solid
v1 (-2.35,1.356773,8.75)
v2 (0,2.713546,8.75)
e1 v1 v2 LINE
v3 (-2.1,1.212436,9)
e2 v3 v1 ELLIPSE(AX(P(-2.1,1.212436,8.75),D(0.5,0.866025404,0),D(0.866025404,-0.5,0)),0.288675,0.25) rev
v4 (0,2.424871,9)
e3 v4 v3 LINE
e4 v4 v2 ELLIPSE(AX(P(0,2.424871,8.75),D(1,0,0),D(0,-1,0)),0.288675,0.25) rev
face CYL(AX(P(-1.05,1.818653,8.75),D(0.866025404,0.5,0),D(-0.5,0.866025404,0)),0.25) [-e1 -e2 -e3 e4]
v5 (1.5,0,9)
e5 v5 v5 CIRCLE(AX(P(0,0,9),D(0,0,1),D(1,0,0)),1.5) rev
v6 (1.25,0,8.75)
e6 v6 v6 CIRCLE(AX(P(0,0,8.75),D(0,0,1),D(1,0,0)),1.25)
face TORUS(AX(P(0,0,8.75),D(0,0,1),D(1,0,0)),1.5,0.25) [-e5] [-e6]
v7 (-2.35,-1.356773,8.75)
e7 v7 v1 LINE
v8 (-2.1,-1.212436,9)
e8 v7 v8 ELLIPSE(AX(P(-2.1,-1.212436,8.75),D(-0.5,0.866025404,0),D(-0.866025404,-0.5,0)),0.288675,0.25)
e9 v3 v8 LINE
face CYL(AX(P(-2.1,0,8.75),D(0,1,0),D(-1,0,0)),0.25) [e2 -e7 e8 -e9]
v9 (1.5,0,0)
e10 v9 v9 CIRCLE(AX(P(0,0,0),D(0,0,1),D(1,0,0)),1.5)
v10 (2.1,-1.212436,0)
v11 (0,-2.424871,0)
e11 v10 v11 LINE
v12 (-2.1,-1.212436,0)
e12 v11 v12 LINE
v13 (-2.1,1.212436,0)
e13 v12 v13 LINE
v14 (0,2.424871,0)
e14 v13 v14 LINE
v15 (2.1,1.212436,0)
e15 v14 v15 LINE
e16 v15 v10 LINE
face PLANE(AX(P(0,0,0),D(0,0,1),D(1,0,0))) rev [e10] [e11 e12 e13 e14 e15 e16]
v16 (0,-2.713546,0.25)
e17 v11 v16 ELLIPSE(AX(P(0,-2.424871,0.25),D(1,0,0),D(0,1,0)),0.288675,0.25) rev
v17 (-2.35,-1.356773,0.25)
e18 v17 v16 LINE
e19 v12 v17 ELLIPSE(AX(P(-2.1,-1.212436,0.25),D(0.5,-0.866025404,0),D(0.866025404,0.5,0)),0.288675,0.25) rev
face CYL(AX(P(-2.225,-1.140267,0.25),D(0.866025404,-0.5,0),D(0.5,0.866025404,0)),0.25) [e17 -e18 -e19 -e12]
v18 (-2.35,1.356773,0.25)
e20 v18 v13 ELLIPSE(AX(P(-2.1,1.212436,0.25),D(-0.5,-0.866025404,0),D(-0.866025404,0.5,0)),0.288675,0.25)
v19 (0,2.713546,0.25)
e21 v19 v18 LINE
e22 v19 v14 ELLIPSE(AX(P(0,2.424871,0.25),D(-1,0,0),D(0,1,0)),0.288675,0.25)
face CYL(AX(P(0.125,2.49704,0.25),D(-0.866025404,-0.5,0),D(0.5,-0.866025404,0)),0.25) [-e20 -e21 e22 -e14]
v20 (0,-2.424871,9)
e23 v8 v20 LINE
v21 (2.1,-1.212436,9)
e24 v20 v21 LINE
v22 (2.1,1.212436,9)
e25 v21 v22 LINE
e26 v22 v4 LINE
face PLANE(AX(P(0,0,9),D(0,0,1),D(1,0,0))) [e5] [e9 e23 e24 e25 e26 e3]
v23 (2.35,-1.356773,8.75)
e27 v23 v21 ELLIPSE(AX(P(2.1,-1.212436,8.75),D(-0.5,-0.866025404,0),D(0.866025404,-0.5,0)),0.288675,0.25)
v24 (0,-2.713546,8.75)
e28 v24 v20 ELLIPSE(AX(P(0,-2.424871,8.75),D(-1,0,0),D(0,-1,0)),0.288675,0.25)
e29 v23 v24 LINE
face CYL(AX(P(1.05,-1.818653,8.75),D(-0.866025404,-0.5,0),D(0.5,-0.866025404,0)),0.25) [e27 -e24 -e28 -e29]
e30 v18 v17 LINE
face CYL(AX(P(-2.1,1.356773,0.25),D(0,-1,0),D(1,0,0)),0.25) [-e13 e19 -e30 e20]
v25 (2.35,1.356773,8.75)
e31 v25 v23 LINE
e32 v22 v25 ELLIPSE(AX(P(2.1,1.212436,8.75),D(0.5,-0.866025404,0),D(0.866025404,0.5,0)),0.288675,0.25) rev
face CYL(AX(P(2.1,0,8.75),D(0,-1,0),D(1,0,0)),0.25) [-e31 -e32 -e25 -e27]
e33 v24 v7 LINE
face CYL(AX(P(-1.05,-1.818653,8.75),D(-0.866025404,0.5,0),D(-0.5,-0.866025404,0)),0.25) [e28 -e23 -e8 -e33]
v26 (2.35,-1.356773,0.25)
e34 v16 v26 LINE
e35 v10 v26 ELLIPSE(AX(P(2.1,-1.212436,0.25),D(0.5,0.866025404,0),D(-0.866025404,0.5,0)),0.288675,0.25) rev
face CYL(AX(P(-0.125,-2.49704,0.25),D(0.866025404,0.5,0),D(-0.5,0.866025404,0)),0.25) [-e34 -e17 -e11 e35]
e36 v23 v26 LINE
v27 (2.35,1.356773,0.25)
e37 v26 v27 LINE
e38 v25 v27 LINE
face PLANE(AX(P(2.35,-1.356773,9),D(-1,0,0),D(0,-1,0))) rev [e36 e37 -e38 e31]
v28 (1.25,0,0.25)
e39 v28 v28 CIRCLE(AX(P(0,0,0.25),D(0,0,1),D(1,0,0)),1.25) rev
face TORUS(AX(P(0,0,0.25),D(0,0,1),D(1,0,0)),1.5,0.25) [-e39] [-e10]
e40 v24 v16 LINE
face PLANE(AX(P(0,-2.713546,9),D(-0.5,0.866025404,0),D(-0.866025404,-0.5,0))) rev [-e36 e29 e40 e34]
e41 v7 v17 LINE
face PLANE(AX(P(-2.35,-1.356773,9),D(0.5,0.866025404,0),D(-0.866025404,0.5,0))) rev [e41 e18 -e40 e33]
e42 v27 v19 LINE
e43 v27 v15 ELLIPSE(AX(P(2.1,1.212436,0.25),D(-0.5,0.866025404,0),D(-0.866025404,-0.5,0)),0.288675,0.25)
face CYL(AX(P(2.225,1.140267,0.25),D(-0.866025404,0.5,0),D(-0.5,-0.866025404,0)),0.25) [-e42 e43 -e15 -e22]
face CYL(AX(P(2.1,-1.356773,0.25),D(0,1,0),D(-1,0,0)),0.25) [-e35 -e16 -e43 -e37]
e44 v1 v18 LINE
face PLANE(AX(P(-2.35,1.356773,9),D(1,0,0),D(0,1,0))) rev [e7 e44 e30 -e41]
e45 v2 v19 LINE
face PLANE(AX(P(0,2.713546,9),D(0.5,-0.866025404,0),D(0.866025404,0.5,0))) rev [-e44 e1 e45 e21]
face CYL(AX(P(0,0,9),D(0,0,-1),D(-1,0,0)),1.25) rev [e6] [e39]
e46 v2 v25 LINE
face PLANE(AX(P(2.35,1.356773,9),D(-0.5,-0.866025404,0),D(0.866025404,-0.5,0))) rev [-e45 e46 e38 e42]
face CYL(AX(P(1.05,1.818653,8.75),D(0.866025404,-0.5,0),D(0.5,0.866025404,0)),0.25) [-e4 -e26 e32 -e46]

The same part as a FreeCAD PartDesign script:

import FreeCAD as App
import Part
import Sketcher
Q = App.Units.Quantity


def edges_at(feature, points):
    """Names of the edges that pass closest to the given points."""
    edges = feature.Shape.Edges
    near = lambda p: min(range(len(edges)), key=lambda i: edges[i].distToShape(Part.Vertex(*p))[0])
    return sorted({f"Edge{near(p) + 1}" for p in points})


def add_polygon(sketch, points):
    """Adds a closed chain of lines whose ends are joined by coincident constraints."""
    first, n = sketch.GeometryCount, len(points)
    for a, b in zip(points, points[1:] + points[:1]):
        sketch.addGeometry(Part.LineSegment(App.Vector(*a, 0), App.Vector(*b, 0)), False)
    for i in range(n):
        sketch.addConstraint(Sketcher.Constraint("Coincident", first + i, 2, first + (i + 1) % n, 1))

doc = App.newDocument("Part")
params = doc.addObject("Spreadsheet::Sheet", "Params")
for row, (alias, value) in enumerate([
    ("sketch1_diameter", "2.5 mm"),
    ("pad1_length", "9 mm"),
    ("fillet_radius", "0.25 mm"),
    ("fillet2_radius", "0.25 mm"),
], start=1):
    params.set(f"A{row}", alias)
    params.set(f"B{row}", "=" + value)
    params.setAlias(f"B{row}", alias)

body = doc.addObject("PartDesign::Body", "Body")

sketch1 = body.newObject("Sketcher::SketchObject", "Sketch")
sketch1.AttachmentSupport = (doc.getObject("XY_Plane"), [""])
sketch1.MapMode = "FlatFace"
add_polygon(sketch1, [(2.35, 1.356773), (0, 2.713546), (-2.35, 1.356773), (-2.35, -1.356773), (0, -2.713546), (2.35, -1.356773)])
sketch1.addGeometry(Part.Circle(App.Vector(0, 0, 0), App.Vector(0, 0, 1), 1.25), False)
sketch1.addConstraint([
    Sketcher.Constraint("Vertical", 2),
    Sketcher.Constraint("Vertical", 5),
    Sketcher.Constraint("Coincident", 6, 3, -1, 1),
    Sketcher.Constraint("Symmetric", 0, 2, 3, 2, -1, 1),
    Sketcher.Constraint("Symmetric", 1, 2, 4, 2, -1, 1),
    Sketcher.Constraint("PointOnObject", 0, 2, -2),
    Sketcher.Constraint("Parallel", 0, 3),
    Sketcher.Constraint("Horizontal", 2, 2, 4, 2),
    Sketcher.Constraint("Diameter", 6, 2.5),
    Sketcher.Constraint("Angle", 0, Q("150 deg")),
    Sketcher.Constraint("DistanceX", 2, 2, 4, 2, 4.7),
    Sketcher.Constraint("DistanceY", 2, 2, 2, 1, 2.713546),
])
sketch1.setExpression("Constraints[14]", "Params.sketch1_diameter")
pad1 = body.newObject("PartDesign::Pad", "Pad")
pad1.Profile = sketch1
pad1.setExpression("Length", "Params.pad1_length")
doc.recompute()

fillet = body.newObject("PartDesign::Fillet", "Fillet")
fillet.Base = (pad1, edges_at(pad1, [
    (-1.175, 2.035, 9),
    (-2.35, 0, 9),
    (-1.175, -2.035, 9),
    (1.175, -2.035, 9),
    (2.35, 0, 9),
    (1.175, -2.035, 0),
    (-1.175, -2.035, 0),
    (-2.35, 0, 0),
    (1.175, 2.035, 9),
    (-1.175, 2.035, 0),
    (1.175, 2.035, 0),
    (2.35, 0, 0),
]))
fillet.setExpression("Radius", "Params.fillet_radius")
doc.recompute()

fillet2 = body.newObject("PartDesign::Fillet", "Fillet001")
fillet2.Base = (fillet, edges_at(fillet, [(-1.25, 0, 0), (-1.25, 0, 9)]))
fillet2.setExpression("Radius", "Params.fillet2_radius")

doc.recompute()
